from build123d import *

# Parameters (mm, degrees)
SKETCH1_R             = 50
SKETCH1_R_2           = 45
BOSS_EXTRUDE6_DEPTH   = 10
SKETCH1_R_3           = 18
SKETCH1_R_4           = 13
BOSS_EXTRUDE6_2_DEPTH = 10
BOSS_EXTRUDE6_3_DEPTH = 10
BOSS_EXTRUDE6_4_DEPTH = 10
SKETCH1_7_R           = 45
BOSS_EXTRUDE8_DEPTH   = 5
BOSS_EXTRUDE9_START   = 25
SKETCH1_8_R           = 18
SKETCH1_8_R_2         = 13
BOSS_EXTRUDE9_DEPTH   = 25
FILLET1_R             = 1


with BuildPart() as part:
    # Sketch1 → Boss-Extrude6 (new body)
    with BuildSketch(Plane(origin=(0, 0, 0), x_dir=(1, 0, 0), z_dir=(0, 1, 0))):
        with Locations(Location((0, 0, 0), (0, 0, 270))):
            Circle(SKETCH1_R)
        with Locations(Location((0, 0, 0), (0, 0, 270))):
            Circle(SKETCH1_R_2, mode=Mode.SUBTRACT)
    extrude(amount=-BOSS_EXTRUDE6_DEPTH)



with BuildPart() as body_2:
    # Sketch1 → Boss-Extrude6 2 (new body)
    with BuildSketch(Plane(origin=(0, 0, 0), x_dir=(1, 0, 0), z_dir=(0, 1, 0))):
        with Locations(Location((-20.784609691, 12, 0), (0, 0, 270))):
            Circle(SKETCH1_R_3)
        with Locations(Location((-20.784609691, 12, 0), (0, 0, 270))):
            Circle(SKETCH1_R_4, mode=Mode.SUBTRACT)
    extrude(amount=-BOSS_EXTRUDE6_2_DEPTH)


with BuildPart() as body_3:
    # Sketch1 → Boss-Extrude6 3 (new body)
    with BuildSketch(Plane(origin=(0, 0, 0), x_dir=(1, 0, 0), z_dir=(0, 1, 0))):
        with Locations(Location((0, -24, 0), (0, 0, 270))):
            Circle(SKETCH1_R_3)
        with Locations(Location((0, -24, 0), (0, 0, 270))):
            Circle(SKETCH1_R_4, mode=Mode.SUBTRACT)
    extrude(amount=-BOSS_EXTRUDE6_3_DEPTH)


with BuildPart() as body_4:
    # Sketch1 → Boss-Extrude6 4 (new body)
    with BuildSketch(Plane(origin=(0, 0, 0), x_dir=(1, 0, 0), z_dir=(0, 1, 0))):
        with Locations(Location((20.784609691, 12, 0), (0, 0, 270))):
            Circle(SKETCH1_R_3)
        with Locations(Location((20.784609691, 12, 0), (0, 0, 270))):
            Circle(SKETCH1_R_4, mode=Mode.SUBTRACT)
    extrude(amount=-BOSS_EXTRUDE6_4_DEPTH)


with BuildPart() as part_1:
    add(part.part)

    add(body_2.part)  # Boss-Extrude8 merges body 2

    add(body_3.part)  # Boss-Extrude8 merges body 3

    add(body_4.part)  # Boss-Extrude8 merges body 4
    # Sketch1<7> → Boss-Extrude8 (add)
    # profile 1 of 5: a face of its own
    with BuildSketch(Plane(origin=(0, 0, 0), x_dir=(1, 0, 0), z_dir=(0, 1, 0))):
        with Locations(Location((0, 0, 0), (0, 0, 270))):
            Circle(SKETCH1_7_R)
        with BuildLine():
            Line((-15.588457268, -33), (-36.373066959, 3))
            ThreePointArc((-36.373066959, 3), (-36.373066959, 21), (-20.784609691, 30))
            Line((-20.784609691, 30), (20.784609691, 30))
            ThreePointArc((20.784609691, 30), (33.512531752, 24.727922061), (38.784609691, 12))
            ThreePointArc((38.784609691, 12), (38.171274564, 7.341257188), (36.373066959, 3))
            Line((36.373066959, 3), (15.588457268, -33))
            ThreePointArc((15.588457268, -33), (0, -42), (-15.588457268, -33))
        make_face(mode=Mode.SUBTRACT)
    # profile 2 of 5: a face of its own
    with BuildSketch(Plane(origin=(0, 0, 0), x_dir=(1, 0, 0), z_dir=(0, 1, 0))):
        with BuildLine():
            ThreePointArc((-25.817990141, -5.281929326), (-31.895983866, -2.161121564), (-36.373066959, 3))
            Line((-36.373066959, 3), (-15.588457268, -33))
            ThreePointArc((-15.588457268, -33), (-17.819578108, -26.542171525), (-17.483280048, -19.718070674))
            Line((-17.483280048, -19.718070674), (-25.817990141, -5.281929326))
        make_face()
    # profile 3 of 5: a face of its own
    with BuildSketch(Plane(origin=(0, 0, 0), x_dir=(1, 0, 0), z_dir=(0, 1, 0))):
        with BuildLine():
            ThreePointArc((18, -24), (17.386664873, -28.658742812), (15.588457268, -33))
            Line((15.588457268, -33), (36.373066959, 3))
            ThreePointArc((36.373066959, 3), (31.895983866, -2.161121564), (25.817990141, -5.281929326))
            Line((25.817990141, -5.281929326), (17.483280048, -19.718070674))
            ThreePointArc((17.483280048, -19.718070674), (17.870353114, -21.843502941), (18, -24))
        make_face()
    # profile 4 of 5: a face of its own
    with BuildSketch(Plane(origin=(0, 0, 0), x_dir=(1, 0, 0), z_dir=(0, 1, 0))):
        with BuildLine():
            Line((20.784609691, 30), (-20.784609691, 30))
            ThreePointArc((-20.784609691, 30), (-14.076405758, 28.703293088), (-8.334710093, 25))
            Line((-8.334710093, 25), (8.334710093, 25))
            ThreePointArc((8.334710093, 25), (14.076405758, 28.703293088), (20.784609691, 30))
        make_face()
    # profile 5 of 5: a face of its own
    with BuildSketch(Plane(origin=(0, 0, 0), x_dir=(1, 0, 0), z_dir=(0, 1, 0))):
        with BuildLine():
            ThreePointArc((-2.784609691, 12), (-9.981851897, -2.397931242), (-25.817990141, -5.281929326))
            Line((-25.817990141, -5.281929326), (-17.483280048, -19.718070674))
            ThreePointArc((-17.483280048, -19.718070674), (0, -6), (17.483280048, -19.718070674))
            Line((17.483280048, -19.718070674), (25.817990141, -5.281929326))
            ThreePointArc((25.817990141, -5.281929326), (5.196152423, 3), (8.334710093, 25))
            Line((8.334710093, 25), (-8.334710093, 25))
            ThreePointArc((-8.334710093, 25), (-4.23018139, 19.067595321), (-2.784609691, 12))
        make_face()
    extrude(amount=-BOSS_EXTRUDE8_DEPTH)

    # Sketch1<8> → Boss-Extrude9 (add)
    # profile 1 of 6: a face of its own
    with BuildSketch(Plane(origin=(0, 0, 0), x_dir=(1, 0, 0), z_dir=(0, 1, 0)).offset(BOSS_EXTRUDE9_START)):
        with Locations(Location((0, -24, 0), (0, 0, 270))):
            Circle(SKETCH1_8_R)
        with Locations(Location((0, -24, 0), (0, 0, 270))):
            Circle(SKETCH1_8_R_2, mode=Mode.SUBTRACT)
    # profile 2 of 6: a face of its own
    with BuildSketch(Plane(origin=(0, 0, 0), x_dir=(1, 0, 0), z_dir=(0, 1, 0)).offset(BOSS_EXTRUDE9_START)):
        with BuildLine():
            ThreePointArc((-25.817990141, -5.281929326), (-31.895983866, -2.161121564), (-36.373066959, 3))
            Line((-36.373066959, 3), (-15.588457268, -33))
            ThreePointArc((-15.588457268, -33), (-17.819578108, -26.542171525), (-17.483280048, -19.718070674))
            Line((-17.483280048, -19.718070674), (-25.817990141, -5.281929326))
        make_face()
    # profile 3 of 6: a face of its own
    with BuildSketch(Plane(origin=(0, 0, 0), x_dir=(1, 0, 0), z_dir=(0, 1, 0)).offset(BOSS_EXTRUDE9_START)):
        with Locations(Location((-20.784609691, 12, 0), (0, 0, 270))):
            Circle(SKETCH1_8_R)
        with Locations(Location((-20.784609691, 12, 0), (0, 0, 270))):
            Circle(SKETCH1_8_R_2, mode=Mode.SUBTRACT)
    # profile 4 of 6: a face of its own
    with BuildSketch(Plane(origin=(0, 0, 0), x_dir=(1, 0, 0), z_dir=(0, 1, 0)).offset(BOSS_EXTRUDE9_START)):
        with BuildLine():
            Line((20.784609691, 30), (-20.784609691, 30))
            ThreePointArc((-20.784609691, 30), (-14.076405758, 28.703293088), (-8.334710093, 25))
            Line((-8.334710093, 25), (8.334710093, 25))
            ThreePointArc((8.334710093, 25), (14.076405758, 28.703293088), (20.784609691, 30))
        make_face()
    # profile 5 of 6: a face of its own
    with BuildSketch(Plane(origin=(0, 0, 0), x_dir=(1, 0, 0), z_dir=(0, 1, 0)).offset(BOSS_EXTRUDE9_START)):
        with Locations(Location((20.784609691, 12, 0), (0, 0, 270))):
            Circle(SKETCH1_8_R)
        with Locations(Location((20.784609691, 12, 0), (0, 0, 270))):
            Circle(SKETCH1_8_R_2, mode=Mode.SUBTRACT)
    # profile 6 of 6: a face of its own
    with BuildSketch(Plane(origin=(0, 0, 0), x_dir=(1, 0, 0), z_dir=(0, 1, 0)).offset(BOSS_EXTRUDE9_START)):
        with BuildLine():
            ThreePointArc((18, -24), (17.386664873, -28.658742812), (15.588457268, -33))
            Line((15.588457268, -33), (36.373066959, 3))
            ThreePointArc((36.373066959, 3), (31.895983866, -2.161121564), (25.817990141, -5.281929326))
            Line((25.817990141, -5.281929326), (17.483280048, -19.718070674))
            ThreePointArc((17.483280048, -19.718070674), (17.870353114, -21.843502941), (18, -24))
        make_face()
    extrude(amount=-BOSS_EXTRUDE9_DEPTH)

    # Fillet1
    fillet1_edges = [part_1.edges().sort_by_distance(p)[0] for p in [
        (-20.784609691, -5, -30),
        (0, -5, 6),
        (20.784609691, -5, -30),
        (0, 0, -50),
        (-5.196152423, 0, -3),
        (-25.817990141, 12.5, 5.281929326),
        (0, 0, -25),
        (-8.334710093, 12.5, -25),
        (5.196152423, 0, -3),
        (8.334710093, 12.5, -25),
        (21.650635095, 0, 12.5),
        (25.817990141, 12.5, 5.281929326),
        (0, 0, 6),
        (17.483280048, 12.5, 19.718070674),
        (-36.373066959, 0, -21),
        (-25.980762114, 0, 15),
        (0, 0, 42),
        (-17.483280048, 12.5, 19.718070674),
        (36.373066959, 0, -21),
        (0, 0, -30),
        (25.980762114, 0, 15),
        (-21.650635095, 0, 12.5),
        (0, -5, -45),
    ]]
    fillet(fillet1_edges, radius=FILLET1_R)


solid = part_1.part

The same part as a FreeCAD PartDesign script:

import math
import FreeCAD as App
import Part
import Sketcher

V = App.Vector
Q = App.Units.Quantity


def edges_at(feature, points):
    """Names of the edges that pass closest to the given points."""
    edges = feature.Shape.Edges
    near = lambda p: min(range(len(edges)), key=lambda i: edges[i].distToShape(Part.Vertex(*p))[0])
    return sorted({f"Edge{near(p) + 1}" for p in points})

doc = App.newDocument("Part")
params = doc.addObject("Spreadsheet::Sheet", "Params")
for row, (alias, value) in enumerate([
    ("sketch1_diameter", "100 mm"),
    ("sketch1_diameter2", "90 mm"),
    ("pad1_length", "10 mm"),
    ("sketch2_diameter", "36 mm"),
    ("sketch2_diameter2", "26 mm"),
    ("pad2_length", "10 mm"),
    ("sketch3_diameter", "36 mm"),
    ("sketch3_diameter2", "26 mm"),
    ("pad3_length", "10 mm"),
    ("sketch4_diameter", "36 mm"),
    ("sketch4_diameter2", "26 mm"),
    ("pad4_length", "10 mm"),
    ("sketch5_diameter", "90 mm"),
    ("sketch5_radius", "18 mm"),
    ("pad5_length", "5 mm"),
    ("sketch6_diameter", "26 mm"),
    ("sketch6_radius", "18 mm"),
    ("pad6_length", "25 mm"),
    ("fillet_radius", "1 mm"),
], start=1):
    params.set(f"A{row}", alias)
    params.set(f"B{row}", "=" + value)
    params.setAlias(f"B{row}", alias)

body = doc.addObject("PartDesign::Body", "Body")

# Sketch on XZ plane
sketch1 = body.newObject("Sketcher::SketchObject", "Sketch")
sketch1.AttachmentSupport = (doc.getObject("XZ_Plane"), [""])
sketch1.MapMode = "FlatFace"
sketch1.addGeometry([
    Part.Circle(V(0, 0, 0), V(0, 0, 1), 50),
    Part.Circle(V(0, 0, 0), V(0, 0, 1), 45),
], False)
sketch1.addConstraint([
    Sketcher.Constraint("Coincident", 0, 3, -1, 1),
    Sketcher.Constraint("Coincident", 1, 3, -1, 1),
    Sketcher.Constraint("Diameter", 0, 100.0),
    Sketcher.Constraint("Diameter", 1, 90.0),
])
sketch1.setExpression("Constraints[2]", "Params.sketch1_diameter")
sketch1.setExpression("Constraints[3]", "Params.sketch1_diameter2")
pad1 = body.newObject("PartDesign::Pad", "Pad")
pad1.Profile = sketch1
pad1.setExpression("Length", "Params.pad1_length")
body2 = doc.addObject("PartDesign::Body", "Body001")

# Sketch on XZ plane
sketch2 = body2.newObject("Sketcher::SketchObject", "Sketch001")
sketch2.AttachmentSupport = (doc.getObject("XZ_Plane001"), [""])
sketch2.MapMode = "FlatFace"
sketch2.addGeometry([
    Part.Circle(V(-21, -12, 0), V(0, 0, 1), 18),
    Part.Circle(V(-21, -12, 0), V(0, 0, 1), 13),
], False)
sketch2.addConstraint([
    Sketcher.Constraint("Coincident", 1, 3, 0, 3),
    Sketcher.Constraint("Diameter", 0, 36.0),
    Sketcher.Constraint("Diameter", 1, 26.0),
    Sketcher.Constraint("DistanceY", 0, 3, -1, 1, 12.0),
    Sketcher.Constraint("DistanceX", 0, 3, -1, 1, 20.78461),
])
sketch2.setExpression("Constraints[1]", "Params.sketch2_diameter")
sketch2.setExpression("Constraints[2]", "Params.sketch2_diameter2")
pad2 = body2.newObject("PartDesign::Pad", "Pad001")
pad2.Profile = sketch2
pad2.setExpression("Length", "Params.pad2_length")
body3 = doc.addObject("PartDesign::Body", "Body002")

# Sketch on XZ plane
sketch3 = body3.newObject("Sketcher::SketchObject", "Sketch002")
sketch3.AttachmentSupport = (doc.getObject("XZ_Plane002"), [""])
sketch3.MapMode = "FlatFace"
sketch3.addGeometry([
    Part.Circle(V(0, 24, 0), V(0, 0, 1), 18),
    Part.Circle(V(0, 24, 0), V(0, 0, 1), 13),
], False)
sketch3.addConstraint([
    Sketcher.Constraint("Coincident", 1, 3, 0, 3),
    Sketcher.Constraint("PointOnObject", 0, 3, -2),
    Sketcher.Constraint("Diameter", 0, 36.0),
    Sketcher.Constraint("Diameter", 1, 26.0),
    Sketcher.Constraint("DistanceY", -1, 1, 0, 3, 24.0),
])
sketch3.setExpression("Constraints[2]", "Params.sketch3_diameter")
sketch3.setExpression("Constraints[3]", "Params.sketch3_diameter2")
pad3 = body3.newObject("PartDesign::Pad", "Pad002")
pad3.Profile = sketch3
pad3.setExpression("Length", "Params.pad3_length")
body4 = doc.addObject("PartDesign::Body", "Body003")

# Sketch on XZ plane
sketch4 = body4.newObject("Sketcher::SketchObject", "Sketch003")
sketch4.AttachmentSupport = (doc.getObject("XZ_Plane003"), [""])
sketch4.MapMode = "FlatFace"
sketch4.addGeometry([
    Part.Circle(V(21, -12, 0), V(0, 0, 1), 18),
    Part.Circle(V(21, -12, 0), V(0, 0, 1), 13),
], False)
sketch4.addConstraint([
    Sketcher.Constraint("Coincident", 1, 3, 0, 3),
    Sketcher.Constraint("Diameter", 0, 36.0),
    Sketcher.Constraint("Diameter", 1, 26.0),
    Sketcher.Constraint("DistanceY", 0, 3, -1, 1, 12.0),
    Sketcher.Constraint("DistanceX", -1, 1, 0, 3, 20.78461),
])
sketch4.setExpression("Constraints[1]", "Params.sketch4_diameter")
sketch4.setExpression("Constraints[2]", "Params.sketch4_diameter2")
pad4 = body4.newObject("PartDesign::Pad", "Pad003")
pad4.Profile = sketch4
pad4.setExpression("Length", "Params.pad4_length")
body.AllowCompound = True
doc.recompute()

boolean = body.newObject("PartDesign::Boolean", "Boolean")
boolean.Type = "Fuse"
boolean.addObjects([body2])
doc.recompute()

boolean2 = body.newObject("PartDesign::Boolean", "Boolean001")
boolean2.Type = "Fuse"
boolean2.addObjects([body3])
doc.recompute()

boolean3 = body.newObject("PartDesign::Boolean", "Boolean002")
boolean3.Type = "Fuse"
boolean3.addObjects([body4])

# Sketch on XZ plane
sketch5 = body.newObject("Sketcher::SketchObject", "Sketch004")
sketch5.AttachmentSupport = (doc.getObject("XZ_Plane"), [""])
sketch5.MapMode = "FlatFace"
sketch5.addGeometry([
    Part.Circle(V(0, 0, 0), V(0, 0, 1), 45),  # 0
    Part.ArcOfCircle(Part.Circle(V(0, 24, 0), V(0, 0, 1), 18), math.radians(30), math.radians(150)),  # 1
    Part.ArcOfCircle(Part.Circle(V(0, 24, 0), V(0, 0, 1), 18), math.radians(150), math.radians(194)),  # 2
    Part.ArcOfCircle(Part.Circle(V(0, 24, 0), V(0, 0, 1), 18), math.radians(-166), math.radians(-14)),  # 3
    Part.ArcOfCircle(Part.Circle(V(0, 24, 0), V(0, 0, 1), 18), math.radians(-13.76), math.radians(0)),  # 4
    Part.ArcOfCircle(Part.Circle(V(0, 24, 0), V(0, 0, 1), 18), math.radians(0), math.radians(30)),  # 5
    Part.ArcOfCircle(Part.Circle(V(20.8, -12, 0), V(0, 0, 1), 18), math.radians(0), math.radians(30)),  # 6
    Part.ArcOfCircle(Part.Circle(V(20.8, -12, 0), V(0, 0, 1), 18), math.radians(30), math.radians(74)),  # 7
    Part.ArcOfCircle(Part.Circle(V(20.8, -12, 0), V(0, 0, 1), 18), math.radians(74), math.radians(226)),  # 8
    Part.ArcOfCircle(Part.Circle(V(20.8, -12, 0), V(0, 0, 1), 18), math.radians(-134), math.radians(-90)),  # 9
    Part.ArcOfCircle(Part.Circle(V(20.8, -12, 0), V(0, 0, 1), 18), math.radians(-90), math.radians(0)),  # 10
    Part.ArcOfCircle(Part.Circle(V(-20.8, -12, 0), V(0, 0, 1), 18), math.radians(150), math.radians(270)),  # 11
    Part.ArcOfCircle(Part.Circle(V(-20.8, -12, 0), V(0, 0, 1), 18), math.radians(-90), math.radians(-46)),  # 12
    Part.ArcOfCircle(Part.Circle(V(-20.8, -12, 0), V(0, 0, 1), 18), math.radians(-46), math.radians(0)),  # 13
    Part.ArcOfCircle(Part.Circle(V(-20.8, -12, 0), V(0, 0, 1), 18), math.radians(0), math.radians(106)),  # 14
    Part.ArcOfCircle(Part.Circle(V(-20.8, -12, 0), V(0, 0, 1), 18), math.radians(106), math.radians(150)),  # 15
], False)
sketch5.addConstraint([
    Sketcher.Constraint("Tangent", 1, 2, 2, 1),
    Sketcher.Constraint("Tangent", 2, 2, 3, 1),
    Sketcher.Constraint("Tangent", 3, 2, 4, 1),
    Sketcher.Constraint("Tangent", 4, 2, 5, 1),
    Sketcher.Constraint("Tangent", 5, 2, 1, 1),
    Sketcher.Constraint("Tangent", 6, 2, 7, 1),
    Sketcher.Constraint("Tangent", 7, 2, 8, 1),
    Sketcher.Constraint("Tangent", 8, 2, 9, 1),
    Sketcher.Constraint("Tangent", 9, 2, 10, 1),
    Sketcher.Constraint("Tangent", 10, 2, 6, 1),
    Sketcher.Constraint("Tangent", 11, 2, 12, 1),
    Sketcher.Constraint("Tangent", 12, 2, 13, 1),
    Sketcher.Constraint("Tangent", 13, 2, 14, 1),
    Sketcher.Constraint("Tangent", 14, 2, 15, 1),
    Sketcher.Constraint("Tangent", 15, 2, 11, 1),
    Sketcher.Constraint("Coincident", 0, 3, -1, 1),
    Sketcher.Constraint("Coincident", 3, 3, 1, 3),
    Sketcher.Constraint("Coincident", 8, 3, 6, 3),
    Sketcher.Constraint("Coincident", 13, 3, 11, 3),
    Sketcher.Constraint("Equal", 5, 6),
    Sketcher.Constraint("Equal", 10, 11),
    Sketcher.Constraint("Symmetric", 6, 3, 11, 3, -2),
    Sketcher.Constraint("Symmetric", 2, 2, 3, 2, -2),
    Sketcher.Constraint("Horizontal", 5, 3, 4, 2),
    Sketcher.Constraint("Horizontal", 1, 2, 5, 2),
    Sketcher.Constraint("Horizontal", 15, 3, 10, 2),
    Sketcher.Constraint("Horizontal", 8, 2, 12, 2),
    Sketcher.Constraint("Horizontal", 10, 2, 13, 2),
    Sketcher.Constraint("Horizontal", 7, 2, 14, 2),
    Sketcher.Constraint("Horizontal", 6, 2, 15, 2),
    Sketcher.Constraint("Vertical", 10, 3, 9, 2),
    Sketcher.Constraint("Vertical", 15, 3, 11, 2),
    Sketcher.Constraint("Diameter", 0, 90.0),
    Sketcher.Constraint("Radius", 1, 18.0),
    Sketcher.Constraint("DistanceY", -1, 1, 1, 3, 24.0),
    Sketcher.Constraint("DistanceY", 6, 3, -1, 1, 12.0),
    Sketcher.Constraint("DistanceY", -1, 1, 1, 2, 33.0),
    Sketcher.Constraint("DistanceY", 6, 2, -1, 1, 3.0),
    Sketcher.Constraint("DistanceY", 8, 2, -1, 1, 25.0),
    Sketcher.Constraint("DistanceX", -1, 1, 6, 3, 20.78461),
    Sketcher.Constraint("DistanceX", 2, 2, -1, 1, 17.48328),
    Sketcher.Constraint("DistanceX", -1, 1, 7, 2, 25.81799),
])
sketch5.setExpression("Constraints[32]", "Params.sketch5_diameter")
sketch5.setExpression("Constraints[33]", "Params.sketch5_radius")
pad5 = body.newObject("PartDesign::Pad", "Pad004")
pad5.Profile = sketch5
pad5.setExpression("Length", "Params.pad5_length")

# Sketch on XZ plane
sketch6 = body.newObject("Sketcher::SketchObject", "Sketch005")
sketch6.AttachmentSupport = (doc.getObject("XZ_Plane"), [""])
sketch6.MapMode = "FlatFace"
sketch6.AttachmentOffset = App.Placement(V(0, 0, -25), App.Rotation())
sketch6.addGeometry([
    Part.LineSegment(V(16, 33, 0), V(36, -3, 0)),  # 0
    Part.ArcOfCircle(Part.Circle(V(21, -12, 0), V(0, 0, 1), 18), math.radians(-90), math.radians(30)),  # 1
    Part.LineSegment(V(21, -30, 0), V(-21, -30, 0)),  # 2
    Part.ArcOfCircle(Part.Circle(V(-21, -12, 0), V(0, 0, 1), 18), math.radians(150), math.radians(270)),  # 3
    Part.LineSegment(V(-36, -3, 0), V(-16, 33, 0)),  # 4
    Part.ArcOfCircle(Part.Circle(V(0, 24, 0), V(0, 0, 1), 18), math.radians(30), math.radians(150)),  # 5
    Part.ArcOfCircle(Part.Circle(V(0, 24, 0), V(0, 0, 1), 18), math.radians(-166), math.radians(-14)),  # 6
    Part.LineSegment(V(-17, 20, 0), V(-26, 5, 0)),  # 7
    Part.ArcOfCircle(Part.Circle(V(-21, -12, 0), V(0, 0, 1), 18), math.radians(-46), math.radians(106)),  # 8
    Part.LineSegment(V(-8, -25, 0), V(8, -25, 0)),  # 9
    Part.ArcOfCircle(Part.Circle(V(21, -12, 0), V(0, 0, 1), 18), math.radians(74), math.radians(226)),  # 10
    Part.LineSegment(V(26, 5, 0), V(17, 20, 0)),  # 11
    Part.Circle(V(0, 24, 0), V(0, 0, 1), 13),  # 12
    Part.Circle(V(21, -12, 0), V(0, 0, 1), 13),  # 13
    Part.Circle(V(-21, -12, 0), V(0, 0, 1), 13),  # 14
], False)
sketch6.addConstraint([
    Sketcher.Constraint("Tangent", 0, 2, 1, 2),
    Sketcher.Constraint("Tangent", 1, 1, 2, 1),
    Sketcher.Constraint("Tangent", 2, 2, 3, 2),
    Sketcher.Constraint("Tangent", 3, 1, 4, 1),
    Sketcher.Constraint("Tangent", 4, 2, 5, 2),
    Sketcher.Constraint("Tangent", 5, 1, 0, 1),
    Sketcher.Constraint("Coincident", 6, 1, 7, 1),
    Sketcher.Constraint("Coincident", 7, 2, 8, 2),
    Sketcher.Constraint("Coincident", 8, 1, 9, 1),
    Sketcher.Constraint("Coincident", 9, 2, 10, 2),
    Sketcher.Constraint("Coincident", 10, 1, 11, 1),
    Sketcher.Constraint("Coincident", 11, 2, 6, 2),
    Sketcher.Constraint("Horizontal", 2),
    Sketcher.Constraint("Horizontal", 9),
    Sketcher.Constraint("Coincident", 6, 3, 5, 3),
    Sketcher.Constraint("Coincident", 8, 3, 3, 3),
    Sketcher.Constraint("Coincident", 10, 3, 1, 3),
    Sketcher.Constraint("Coincident", 12, 3, 5, 3),
    Sketcher.Constraint("Coincident", 13, 3, 1, 3),
    Sketcher.Constraint("Coincident", 14, 3, 3, 3),
    Sketcher.Constraint("Equal", 1, 3),
    Sketcher.Constraint("Equal", 3, 5),
    Sketcher.Constraint("Equal", 5, 6),
    Sketcher.Constraint("Equal", 6, 8),
    Sketcher.Constraint("Equal", 8, 10),
    Sketcher.Constraint("Equal", 12, 13),
    Sketcher.Constraint("Equal", 13, 14),
    Sketcher.Constraint("Symmetric", 0, 2, 3, 1, -2),
    Sketcher.Constraint("Parallel", 4, 7),
    Sketcher.Constraint("Parallel", 0, 11),
    Sketcher.Constraint("Horizontal", 7, 2, 10, 1),
    Sketcher.Constraint("Diameter", 12, 26.0),
    Sketcher.Constraint("Radius", 1, 18.0),
    Sketcher.Constraint("Angle", 0, Q("-60 deg")),
    Sketcher.Constraint("DistanceY", 1, 3, -1, 1, 12.0),
    Sketcher.Constraint("DistanceY", -1, 1, 5, 3, 24.0),
    Sketcher.Constraint("DistanceY", 8, 1, -1, 1, 25.0),
    Sketcher.Constraint("Distance", 7, 16.66942),
])
sketch6.setExpression("Constraints[31]", "Params.sketch6_diameter")
sketch6.setExpression("Constraints[32]", "Params.sketch6_radius")
pad6 = body.newObject("PartDesign::Pad", "Pad005")
pad6.Profile = sketch6
pad6.setExpression("Length", "Params.pad6_length")
doc.recompute()

fillet = body.newObject("PartDesign::Fillet", "Fillet")
fillet.Base = (pad6, edges_at(pad6, [
    (-36.373, -5, -21),
    (0, -5, 6),
    (14.076, -5, -28.703),
    (0, 0, -50),
    (-5.196, 0, -3),
    (-25.818, 12.5, 5.282),
    (0, 0, -25),
    (-8.335, 12.5, -25),
    (5.196, 0, -3),
    (8.335, 12.5, -25),
    (21.651, 0, 12.5),
    (25.818, 12.5, 5.282),
    (0, 0, 6),
    (17.483, 12.5, 19.718),
    (-36.373, 0, -21),
    (-25.981, 0, 15),
    (0, 0, 42),
    (-17.483, 12.5, 19.718),
    (36.373, 0, -21),
    (0, 0, -30),
    (25.981, 0, 15),
    (-21.651, 0, 12.5),
    (0, -5, -45),
]))
fillet.setExpression("Radius", "Params.fillet_radius")

doc.recompute()
